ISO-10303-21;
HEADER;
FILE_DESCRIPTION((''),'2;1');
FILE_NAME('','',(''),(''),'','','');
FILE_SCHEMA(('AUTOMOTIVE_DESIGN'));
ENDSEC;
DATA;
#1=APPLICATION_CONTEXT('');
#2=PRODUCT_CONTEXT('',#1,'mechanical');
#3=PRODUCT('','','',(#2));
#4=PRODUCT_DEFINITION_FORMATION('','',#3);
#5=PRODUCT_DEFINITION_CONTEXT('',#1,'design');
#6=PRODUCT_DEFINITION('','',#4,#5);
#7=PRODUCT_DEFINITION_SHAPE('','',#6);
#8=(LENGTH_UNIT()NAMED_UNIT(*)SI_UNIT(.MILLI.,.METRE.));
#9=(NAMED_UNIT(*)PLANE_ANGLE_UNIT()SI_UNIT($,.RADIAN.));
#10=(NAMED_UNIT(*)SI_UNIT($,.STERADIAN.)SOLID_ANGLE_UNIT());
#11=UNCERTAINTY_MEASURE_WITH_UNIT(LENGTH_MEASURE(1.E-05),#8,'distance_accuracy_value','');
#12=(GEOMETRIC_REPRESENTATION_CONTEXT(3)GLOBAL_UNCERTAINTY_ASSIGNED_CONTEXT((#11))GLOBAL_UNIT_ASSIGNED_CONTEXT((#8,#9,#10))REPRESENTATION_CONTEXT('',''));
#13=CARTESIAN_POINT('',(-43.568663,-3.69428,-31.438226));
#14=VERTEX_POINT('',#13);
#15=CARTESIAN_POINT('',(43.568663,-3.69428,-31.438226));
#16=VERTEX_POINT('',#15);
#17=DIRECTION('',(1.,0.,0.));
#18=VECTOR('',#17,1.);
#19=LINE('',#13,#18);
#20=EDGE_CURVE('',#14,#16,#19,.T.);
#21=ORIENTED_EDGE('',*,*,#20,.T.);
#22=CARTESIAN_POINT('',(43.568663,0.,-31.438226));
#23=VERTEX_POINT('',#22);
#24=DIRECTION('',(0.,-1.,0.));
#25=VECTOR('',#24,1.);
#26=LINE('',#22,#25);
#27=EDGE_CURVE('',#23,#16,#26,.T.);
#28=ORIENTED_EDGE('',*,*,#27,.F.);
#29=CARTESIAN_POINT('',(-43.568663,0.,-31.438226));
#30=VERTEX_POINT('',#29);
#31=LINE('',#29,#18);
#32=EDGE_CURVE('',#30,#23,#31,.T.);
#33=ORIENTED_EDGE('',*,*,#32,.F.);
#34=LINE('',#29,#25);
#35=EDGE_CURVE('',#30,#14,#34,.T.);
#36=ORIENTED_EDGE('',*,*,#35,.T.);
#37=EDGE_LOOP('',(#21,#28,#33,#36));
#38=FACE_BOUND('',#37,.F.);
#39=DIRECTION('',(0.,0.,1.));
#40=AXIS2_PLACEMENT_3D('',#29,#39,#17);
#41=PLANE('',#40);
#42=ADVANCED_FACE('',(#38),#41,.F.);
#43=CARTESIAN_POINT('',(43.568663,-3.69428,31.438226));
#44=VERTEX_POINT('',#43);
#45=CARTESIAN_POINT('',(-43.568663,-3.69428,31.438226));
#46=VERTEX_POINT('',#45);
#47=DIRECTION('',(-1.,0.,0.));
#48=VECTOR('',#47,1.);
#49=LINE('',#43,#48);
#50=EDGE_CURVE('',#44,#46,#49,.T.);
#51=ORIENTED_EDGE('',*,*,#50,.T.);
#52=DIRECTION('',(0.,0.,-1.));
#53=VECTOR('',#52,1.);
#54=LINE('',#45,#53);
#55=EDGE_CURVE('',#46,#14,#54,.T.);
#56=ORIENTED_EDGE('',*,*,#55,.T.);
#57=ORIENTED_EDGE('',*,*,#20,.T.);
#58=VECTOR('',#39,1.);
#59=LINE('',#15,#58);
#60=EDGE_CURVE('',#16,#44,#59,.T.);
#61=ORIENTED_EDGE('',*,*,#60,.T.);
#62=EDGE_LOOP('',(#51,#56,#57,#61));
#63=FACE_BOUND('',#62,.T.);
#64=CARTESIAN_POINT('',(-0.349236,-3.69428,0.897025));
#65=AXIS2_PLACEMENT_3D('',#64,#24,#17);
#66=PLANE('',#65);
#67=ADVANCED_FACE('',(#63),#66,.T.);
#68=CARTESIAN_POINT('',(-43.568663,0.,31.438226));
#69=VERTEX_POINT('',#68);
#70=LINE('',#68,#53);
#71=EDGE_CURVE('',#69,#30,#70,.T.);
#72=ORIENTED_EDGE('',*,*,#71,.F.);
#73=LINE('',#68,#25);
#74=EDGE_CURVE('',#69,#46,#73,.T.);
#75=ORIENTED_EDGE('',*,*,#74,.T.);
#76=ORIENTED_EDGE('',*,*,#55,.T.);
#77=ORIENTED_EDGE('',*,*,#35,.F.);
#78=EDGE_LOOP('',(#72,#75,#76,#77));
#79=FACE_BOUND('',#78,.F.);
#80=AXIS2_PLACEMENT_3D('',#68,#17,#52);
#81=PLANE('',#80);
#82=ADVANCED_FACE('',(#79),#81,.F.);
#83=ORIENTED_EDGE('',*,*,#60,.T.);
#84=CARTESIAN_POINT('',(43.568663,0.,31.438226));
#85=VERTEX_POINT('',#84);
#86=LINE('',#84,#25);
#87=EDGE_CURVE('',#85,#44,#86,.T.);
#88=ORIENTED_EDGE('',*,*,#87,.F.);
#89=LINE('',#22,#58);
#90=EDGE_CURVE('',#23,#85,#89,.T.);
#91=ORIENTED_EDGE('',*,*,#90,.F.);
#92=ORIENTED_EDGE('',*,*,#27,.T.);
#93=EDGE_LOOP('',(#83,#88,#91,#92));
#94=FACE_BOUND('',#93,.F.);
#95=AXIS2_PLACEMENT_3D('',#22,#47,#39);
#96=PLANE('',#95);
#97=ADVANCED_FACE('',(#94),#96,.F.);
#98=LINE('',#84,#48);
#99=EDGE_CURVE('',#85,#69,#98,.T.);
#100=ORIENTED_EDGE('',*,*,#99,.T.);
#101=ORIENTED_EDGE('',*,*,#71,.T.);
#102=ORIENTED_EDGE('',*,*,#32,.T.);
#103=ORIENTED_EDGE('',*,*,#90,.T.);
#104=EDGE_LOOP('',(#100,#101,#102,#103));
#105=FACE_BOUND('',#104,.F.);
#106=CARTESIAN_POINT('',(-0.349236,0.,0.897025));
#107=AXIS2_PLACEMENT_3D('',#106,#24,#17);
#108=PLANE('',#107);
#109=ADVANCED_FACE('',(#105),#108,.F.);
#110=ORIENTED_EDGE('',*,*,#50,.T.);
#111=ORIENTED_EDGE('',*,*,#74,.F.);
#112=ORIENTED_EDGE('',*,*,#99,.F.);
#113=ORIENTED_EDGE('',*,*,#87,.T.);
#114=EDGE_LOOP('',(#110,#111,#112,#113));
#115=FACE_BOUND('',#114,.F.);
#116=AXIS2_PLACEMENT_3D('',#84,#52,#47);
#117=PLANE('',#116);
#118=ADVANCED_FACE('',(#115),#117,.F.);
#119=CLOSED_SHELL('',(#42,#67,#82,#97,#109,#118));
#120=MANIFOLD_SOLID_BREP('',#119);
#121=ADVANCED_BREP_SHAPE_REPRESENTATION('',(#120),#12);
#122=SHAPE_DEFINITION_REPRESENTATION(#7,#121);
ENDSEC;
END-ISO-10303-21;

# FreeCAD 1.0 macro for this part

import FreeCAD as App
import Part
import Sketcher

V = App.Vector
Q = App.Units.Quantity

doc = App.newDocument("Part")
body = doc.addObject("PartDesign::Body", "Body")

# Sketch on XZ plane
sketch1 = doc.addObject("Sketcher::SketchObject", "Sketch")
body.addObject(sketch1)
sketch1.AttachmentSupport = (doc.XZ_Plane, [""])
sketch1.MapMode = "FlatFace"
sketch1.addGeometry([
    Part.LineSegment(V(44, -31, 0), V(44, 31, 0)),
    Part.LineSegment(V(44, 31, 0), V(-44, 31, 0)),
    Part.LineSegment(V(-44, 31, 0), V(-44, -31, 0)),
    Part.LineSegment(V(-44, -31, 0), V(44, -31, 0)),
], False)
sketch1.addConstraint([
    Sketcher.Constraint("Coincident", 0, 2, 1, 1),
    Sketcher.Constraint("Coincident", 1, 2, 2, 1),
    Sketcher.Constraint("Coincident", 2, 2, 3, 1),
    Sketcher.Constraint("Coincident", 3, 2, 0, 1),
    Sketcher.Constraint("Vertical", 0),
    Sketcher.Constraint("Horizontal", 1),
    Sketcher.Constraint("Vertical", 2),
    Sketcher.Constraint("Horizontal", 3),
    Sketcher.Constraint("Symmetric", 0, 2, 2, 2, -1, 1),
    Sketcher.Constraint("DistanceY", 0, 1, 0, 2, Q("62.876452 mm")),
    Sketcher.Constraint("DistanceX", 1, 2, 1, 1, Q("87.137325 mm")),
])
pad1 = doc.addObject("PartDesign::Pad", "Pad")
body.addObject(pad1)
pad1.Profile = sketch1
pad1.Length = 3.69428

doc.recompute()
